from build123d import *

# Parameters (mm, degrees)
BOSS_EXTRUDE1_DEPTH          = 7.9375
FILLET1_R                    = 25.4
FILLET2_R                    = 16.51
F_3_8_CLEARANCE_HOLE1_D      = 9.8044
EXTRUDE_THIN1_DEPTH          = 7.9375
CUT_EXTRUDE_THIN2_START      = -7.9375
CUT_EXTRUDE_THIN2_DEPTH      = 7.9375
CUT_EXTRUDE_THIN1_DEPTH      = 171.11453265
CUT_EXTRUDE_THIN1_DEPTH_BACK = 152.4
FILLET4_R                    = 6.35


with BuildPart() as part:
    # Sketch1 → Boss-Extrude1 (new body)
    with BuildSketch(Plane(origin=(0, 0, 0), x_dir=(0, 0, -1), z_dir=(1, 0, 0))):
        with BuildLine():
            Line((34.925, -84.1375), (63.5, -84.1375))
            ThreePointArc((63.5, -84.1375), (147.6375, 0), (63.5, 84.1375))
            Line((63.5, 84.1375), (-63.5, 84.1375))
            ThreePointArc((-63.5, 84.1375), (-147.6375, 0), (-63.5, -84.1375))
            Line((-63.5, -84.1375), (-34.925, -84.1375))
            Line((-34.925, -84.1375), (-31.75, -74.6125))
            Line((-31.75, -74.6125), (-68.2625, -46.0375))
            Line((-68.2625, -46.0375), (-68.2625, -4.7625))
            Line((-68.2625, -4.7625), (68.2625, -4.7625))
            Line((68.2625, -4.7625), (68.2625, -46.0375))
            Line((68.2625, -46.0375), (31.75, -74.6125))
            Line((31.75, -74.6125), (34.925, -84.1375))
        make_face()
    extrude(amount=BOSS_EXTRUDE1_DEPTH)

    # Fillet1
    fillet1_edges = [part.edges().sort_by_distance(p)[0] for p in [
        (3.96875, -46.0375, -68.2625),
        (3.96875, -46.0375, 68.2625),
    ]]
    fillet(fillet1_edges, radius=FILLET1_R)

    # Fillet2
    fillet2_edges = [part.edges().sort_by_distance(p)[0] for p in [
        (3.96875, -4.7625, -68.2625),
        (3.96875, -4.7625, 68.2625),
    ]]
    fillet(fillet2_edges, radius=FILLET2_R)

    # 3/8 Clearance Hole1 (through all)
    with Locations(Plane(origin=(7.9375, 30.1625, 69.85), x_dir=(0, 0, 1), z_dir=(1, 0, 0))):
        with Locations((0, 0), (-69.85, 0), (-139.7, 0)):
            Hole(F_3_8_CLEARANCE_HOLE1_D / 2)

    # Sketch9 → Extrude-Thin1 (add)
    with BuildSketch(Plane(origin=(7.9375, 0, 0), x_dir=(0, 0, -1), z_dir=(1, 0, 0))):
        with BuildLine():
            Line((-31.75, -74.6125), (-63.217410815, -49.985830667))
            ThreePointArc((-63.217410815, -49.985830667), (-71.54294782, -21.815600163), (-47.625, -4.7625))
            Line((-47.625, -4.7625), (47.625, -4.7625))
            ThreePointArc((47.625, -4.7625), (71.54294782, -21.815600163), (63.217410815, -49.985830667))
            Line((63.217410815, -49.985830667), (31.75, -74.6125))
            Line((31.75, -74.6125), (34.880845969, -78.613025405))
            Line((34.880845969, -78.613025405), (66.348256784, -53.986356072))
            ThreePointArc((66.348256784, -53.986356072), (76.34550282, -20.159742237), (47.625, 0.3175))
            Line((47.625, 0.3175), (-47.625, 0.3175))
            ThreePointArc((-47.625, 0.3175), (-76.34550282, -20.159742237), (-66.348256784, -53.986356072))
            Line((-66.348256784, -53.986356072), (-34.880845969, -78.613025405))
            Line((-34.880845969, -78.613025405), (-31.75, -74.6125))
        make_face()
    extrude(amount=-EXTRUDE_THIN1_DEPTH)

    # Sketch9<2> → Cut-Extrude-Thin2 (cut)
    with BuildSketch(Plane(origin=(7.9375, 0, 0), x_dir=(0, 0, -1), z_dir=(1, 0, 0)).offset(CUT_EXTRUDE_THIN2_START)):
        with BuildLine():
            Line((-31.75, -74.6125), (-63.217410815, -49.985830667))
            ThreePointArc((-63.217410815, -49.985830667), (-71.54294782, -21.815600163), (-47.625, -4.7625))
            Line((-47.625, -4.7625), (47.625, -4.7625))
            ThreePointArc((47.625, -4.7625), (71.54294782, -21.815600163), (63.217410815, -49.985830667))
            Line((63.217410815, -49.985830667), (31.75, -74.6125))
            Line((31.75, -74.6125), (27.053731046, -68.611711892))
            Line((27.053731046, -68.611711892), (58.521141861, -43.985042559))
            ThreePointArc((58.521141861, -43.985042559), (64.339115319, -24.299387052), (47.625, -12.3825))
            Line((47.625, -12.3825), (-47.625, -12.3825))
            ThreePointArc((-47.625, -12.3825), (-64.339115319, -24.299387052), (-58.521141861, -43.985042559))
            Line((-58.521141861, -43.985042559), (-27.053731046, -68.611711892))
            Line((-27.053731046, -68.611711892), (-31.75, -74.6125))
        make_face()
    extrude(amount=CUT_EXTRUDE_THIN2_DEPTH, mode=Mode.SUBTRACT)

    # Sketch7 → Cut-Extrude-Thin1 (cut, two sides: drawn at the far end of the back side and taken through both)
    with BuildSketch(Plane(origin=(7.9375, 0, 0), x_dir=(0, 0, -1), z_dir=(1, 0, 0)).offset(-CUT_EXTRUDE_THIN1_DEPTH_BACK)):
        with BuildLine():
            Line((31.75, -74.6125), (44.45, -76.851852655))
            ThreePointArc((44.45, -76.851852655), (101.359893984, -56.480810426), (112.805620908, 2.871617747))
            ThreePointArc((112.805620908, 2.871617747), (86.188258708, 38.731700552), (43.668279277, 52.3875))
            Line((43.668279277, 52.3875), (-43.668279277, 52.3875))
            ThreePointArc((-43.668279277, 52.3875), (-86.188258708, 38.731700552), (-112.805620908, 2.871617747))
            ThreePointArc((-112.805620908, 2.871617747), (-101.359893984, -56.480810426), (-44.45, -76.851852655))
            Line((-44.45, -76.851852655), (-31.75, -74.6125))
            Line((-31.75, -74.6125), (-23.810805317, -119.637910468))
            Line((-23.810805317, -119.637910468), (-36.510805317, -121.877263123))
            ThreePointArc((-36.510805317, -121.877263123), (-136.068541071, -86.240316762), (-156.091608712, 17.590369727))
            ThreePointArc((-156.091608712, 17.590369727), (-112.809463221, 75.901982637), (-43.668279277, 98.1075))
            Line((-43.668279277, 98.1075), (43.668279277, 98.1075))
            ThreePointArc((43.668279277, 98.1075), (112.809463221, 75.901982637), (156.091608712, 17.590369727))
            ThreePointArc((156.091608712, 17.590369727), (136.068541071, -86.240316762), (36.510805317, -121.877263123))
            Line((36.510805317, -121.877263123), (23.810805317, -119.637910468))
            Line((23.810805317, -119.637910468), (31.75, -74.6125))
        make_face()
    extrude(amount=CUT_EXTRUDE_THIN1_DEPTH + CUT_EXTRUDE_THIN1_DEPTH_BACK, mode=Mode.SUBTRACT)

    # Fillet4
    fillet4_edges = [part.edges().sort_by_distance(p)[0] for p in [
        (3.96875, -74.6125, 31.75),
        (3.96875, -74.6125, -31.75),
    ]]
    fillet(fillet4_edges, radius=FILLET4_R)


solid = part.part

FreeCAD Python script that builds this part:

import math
import FreeCAD as App
import Part
import Sketcher

V = App.Vector
Q = App.Units.Quantity


def edges_at(feature, points):
    """Names of the edges that pass closest to the given points."""
    edges = feature.Shape.Edges
    near = lambda p: min(range(len(edges)), key=lambda i: edges[i].distToShape(Part.Vertex(*p))[0])
    return sorted({f"Edge{near(p) + 1}" for p in points})

doc = App.newDocument("Part")
body = doc.addObject("PartDesign::Body", "Body")

# Sketch on YZ plane
sketch1 = body.newObject("Sketcher::SketchObject", "Sketch")
sketch1.AttachmentSupport = (doc.getObject("YZ_Plane"), [""])
sketch1.MapMode = "FlatFace"
sketch1.addGeometry([
    Part.LineSegment(V(-84, -35, 0), V(-84, -64, 0)),  # 0
    Part.ArcOfCircle(Part.Circle(V(0, -64, 0), V(0, 0, 1), 84), math.radians(180), math.radians(360)),  # 1
    Part.LineSegment(V(84, -64, 0), V(84, 64, 0)),  # 2
    Part.ArcOfCircle(Part.Circle(V(0, 64, 0), V(0, 0, 1), 84), math.radians(0), math.radians(180)),  # 3
    Part.LineSegment(V(-84, 64, 0), V(-84, 35, 0)),  # 4
    Part.LineSegment(V(-84, 35, 0), V(-75, 32, 0)),  # 5
    Part.LineSegment(V(-75, 32, 0), V(-46, 68, 0)),  # 6
    Part.LineSegment(V(-46, 68, 0), V(-5, 68, 0)),  # 7
    Part.LineSegment(V(-5, 68, 0), V(-5, -68, 0)),  # 8
    Part.LineSegment(V(-5, -68, 0), V(-46, -68, 0)),  # 9
    Part.LineSegment(V(-46, -68, 0), V(-75, -32, 0)),  # 10
    Part.LineSegment(V(-75, -32, 0), V(-84, -35, 0)),  # 11
], False)
sketch1.addConstraint([
    Sketcher.Constraint("Tangent", 0, 2, 1, 1),
    Sketcher.Constraint("Tangent", 1, 2, 2, 1),
    Sketcher.Constraint("Tangent", 2, 2, 3, 1),
    Sketcher.Constraint("Tangent", 3, 2, 4, 1),
    Sketcher.Constraint("Coincident", 4, 2, 5, 1),
    Sketcher.Constraint("Coincident", 5, 2, 6, 1),
    Sketcher.Constraint("Coincident", 6, 2, 7, 1),
    Sketcher.Constraint("Coincident", 7, 2, 8, 1),
    Sketcher.Constraint("Coincident", 8, 2, 9, 1),
    Sketcher.Constraint("Coincident", 9, 2, 10, 1),
    Sketcher.Constraint("Coincident", 10, 2, 11, 1),
    Sketcher.Constraint("Coincident", 11, 2, 0, 1),
    Sketcher.Constraint("Vertical", 0),
    Sketcher.Constraint("Vertical", 2),
    Sketcher.Constraint("Vertical", 4),
    Sketcher.Constraint("Horizontal", 7),
    Sketcher.Constraint("Vertical", 8),
    Sketcher.Constraint("Horizontal", 9),
    Sketcher.Constraint("Equal", 1, 3),
    Sketcher.Constraint("Symmetric", 1, 3, 3, 3, -1, 1),
    Sketcher.Constraint("Symmetric", 6, 2, 9, 2, -1),
    Sketcher.Constraint("Symmetric", 5, 2, 10, 2, -1),
    Sketcher.Constraint("Equal", 0, 4),
    Sketcher.Constraint("DistanceY", 2, 1, 2, 2, Q("5 in")),
    Sketcher.Constraint("Radius", 1, Q("3.3125 in")),
    Sketcher.Constraint("DistanceX", 3, 2, 6, 2, Q("1.5 in")),
    Sketcher.Constraint("DistanceX", 8, 2, 1, 2, Q("3.5 in")),
    Sketcher.Constraint("DistanceY", 10, 2, 5, 2, Q("2.5 in")),
    Sketcher.Constraint("DistanceY", 0, 2, 0, 1, Q("1.125 in")),
    Sketcher.Constraint("DistanceY", 8, 2, 8, 1, Q("5.375 in")),
    Sketcher.Constraint("DistanceX", 5, 2, 7, 2, Q("2.75 in")),
])
pad1 = body.newObject("PartDesign::Pad", "Pad")
pad1.Profile = sketch1
pad1.Length = Q("0.3125 in")
doc.recompute()

fillet = body.newObject("PartDesign::Fillet", "Fillet")
fillet.Base = (pad1, edges_at(pad1, [(3.969, -46.038, -68.263), (3.969, -46.038, 68.263)]))
fillet.Radius = Q("1 in")
doc.recompute()

fillet2 = body.newObject("PartDesign::Fillet", "Fillet001")
fillet2.Base = (fillet, edges_at(fillet, [(3.969, -4.763, -68.263), (3.969, -4.763, 68.263)]))
fillet2.Radius = Q("0.65 in")

# Sketch on YZ plane
sketch2 = body.newObject("Sketcher::SketchObject", "Sketch001")
sketch2.AttachmentSupport = (doc.getObject("YZ_Plane"), [""])
sketch2.MapMode = "FlatFace"
sketch2.AttachmentOffset = App.Placement(V(0, 0, 0.3125 * 25.4), App.Rotation())
sketch2.addGeometry([
    Part.Circle(V(30.2, 69.8, 0), V(0, 0, 1), 4.9),
    Part.Circle(V(30.2, 0, 0), V(0, 0, 1), 4.9),
    Part.Circle(V(30.2, -69.8, 0), V(0, 0, 1), 4.9),
], False)
sketch2.addConstraint([
    Sketcher.Constraint("Equal", 0, 1),
    Sketcher.Constraint("Equal", 1, 2),
    Sketcher.Constraint("Symmetric", 0, 3, 2, 3, -1),
    Sketcher.Constraint("PointOnObject", 1, 3, -1),
    Sketcher.Constraint("Vertical", 0, 3, 1, 3),
    Sketcher.Constraint("Diameter", 0, Q("0.386 in")),
    Sketcher.Constraint("DistanceY", 2, 3, 0, 3, Q("5.5 in")),
    Sketcher.Constraint("DistanceX", -1, 1, 0, 3, Q("1.1875 in")),
])
doc.recompute()
hole = body.newObject("PartDesign::Hole", "Hole")
hole.Profile = sketch2
hole.ThreadType = "None"
hole.Diameter = Q("0.386 in")
hole.DepthType = "ThroughAll"

# Sketch on YZ plane
sketch3 = body.newObject("Sketcher::SketchObject", "Sketch002")
sketch3.AttachmentSupport = (doc.getObject("YZ_Plane"), [""])
sketch3.MapMode = "FlatFace"
sketch3.AttachmentOffset = App.Placement(V(0, 0, 0.3125 * 25.4), App.Rotation())
sketch3.addGeometry([
    Part.LineSegment(V(-75, 32, 0), V(-50, 63, 0)),  # 0
    Part.ArcOfCircle(Part.Circle(V(-30, 48, 0), V(0, 0, 1), 25), math.radians(0), math.radians(142)),  # 1
    Part.LineSegment(V(-5, 48, 0), V(-5, -48, 0)),  # 2
    Part.ArcOfCircle(Part.Circle(V(-30, -48, 0), V(0, 0, 1), 25), math.radians(-142), math.radians(0)),  # 3
    Part.LineSegment(V(-50, -63, 0), V(-75, -32, 0)),  # 4
    Part.LineSegment(V(-75, -32, 0), V(-79, -35, 0)),  # 5
    Part.LineSegment(V(-79, -35, 0), V(-54, -66, 0)),  # 6
    Part.ArcOfCircle(Part.Circle(V(-30, -48, 0), V(0, 0, 1), 30), math.radians(-142), math.radians(0)),  # 7
    Part.LineSegment(V(0, -48, 0), V(0, 48, 0)),  # 8
    Part.ArcOfCircle(Part.Circle(V(-30, 48, 0), V(0, 0, 1), 30), math.radians(0), math.radians(142)),  # 9
    Part.LineSegment(V(-54, 66, 0), V(-79, 35, 0)),  # 10
    Part.LineSegment(V(-79, 35, 0), V(-75, 32, 0)),  # 11
], False)
sketch3.addConstraint([
    Sketcher.Constraint("Tangent", 0, 2, 1, 2),
    Sketcher.Constraint("Tangent", 1, 1, 2, 1),
    Sketcher.Constraint("Tangent", 2, 2, 3, 2),
    Sketcher.Constraint("Tangent", 3, 1, 4, 1),
    Sketcher.Constraint("Coincident", 4, 2, 5, 1),
    Sketcher.Constraint("Coincident", 5, 2, 6, 1),
    Sketcher.Constraint("Tangent", 6, 2, 7, 1),
    Sketcher.Constraint("Tangent", 7, 2, 8, 1),
    Sketcher.Constraint("Tangent", 8, 2, 9, 1),
    Sketcher.Constraint("Tangent", 9, 2, 10, 1),
    Sketcher.Constraint("Coincident", 10, 2, 11, 1),
    Sketcher.Constraint("Coincident", 11, 2, 0, 1),
    Sketcher.Constraint("Vertical", 2),
    Sketcher.Constraint("Vertical", 8),
    Sketcher.Constraint("Coincident", 7, 3, 3, 3),
    Sketcher.Constraint("Coincident", 9, 3, 1, 3),
    Sketcher.Constraint("Equal", 1, 3),
    Sketcher.Constraint("Symmetric", 0, 2, 3, 1, -1),
    Sketcher.Constraint("Symmetric", 5, 2, 10, 2, -1),
    Sketcher.Constraint("Perpendicular", 4, 5),
    Sketcher.Constraint("Perpendicular", 5, 6),
    Sketcher.Constraint("Perpendicular", 10, 11),
    Sketcher.Constraint("Distance", 5, Q("0.2 in")),
    Sketcher.Constraint("DistanceY", 2, 2, 2, 1, Q("3.75 in")),
    Sketcher.Constraint("DistanceY", 4, 2, -1, 1, Q("1.25 in")),
    Sketcher.Constraint("DistanceX", 4, 2, 2, 2, Q("2.75 in")),
    Sketcher.Constraint("DistanceX", 1, 1, -1, 1, Q("0.1875 in")),
    Sketcher.Constraint("Radius", 1, Q("25.299695 mm")),
])
pad2 = body.newObject("PartDesign::Pad", "Pad001")
pad2.Profile = sketch3
pad2.Length = Q("0.3125 in")
pad2.Reversed = True

# Sketch on YZ plane
sketch4 = body.newObject("Sketcher::SketchObject", "Sketch003")
sketch4.AttachmentSupport = (doc.getObject("YZ_Plane"), [""])
sketch4.MapMode = "FlatFace"
sketch4.addGeometry([
    Part.LineSegment(V(-50, 63, 0), V(-75, 32, 0)),  # 0
    Part.LineSegment(V(-75, 32, 0), V(-69, 27, 0)),  # 1
    Part.LineSegment(V(-69, 27, 0), V(-44, 59, 0)),  # 2
    Part.ArcOfCircle(Part.Circle(V(-30, 48, 0), V(0, 0, 1), 18), math.radians(0), math.radians(142)),  # 3
    Part.LineSegment(V(-12, 48, 0), V(-12, -48, 0)),  # 4
    Part.ArcOfCircle(Part.Circle(V(-30, -48, 0), V(0, 0, 1), 18), math.radians(-142), math.radians(0)),  # 5
    Part.LineSegment(V(-44, -59, 0), V(-69, -27, 0)),  # 6
    Part.LineSegment(V(-69, -27, 0), V(-75, -32, 0)),  # 7
    Part.LineSegment(V(-75, -32, 0), V(-50, -63, 0)),  # 8
    Part.ArcOfCircle(Part.Circle(V(-30, -48, 0), V(0, 0, 1), 25), math.radians(-142), math.radians(0)),  # 9
    Part.LineSegment(V(-5, -48, 0), V(-5, 48, 0)),  # 10
    Part.ArcOfCircle(Part.Circle(V(-30, 48, 0), V(0, 0, 1), 25), math.radians(0), math.radians(142)),  # 11
], False)
sketch4.addConstraint([
    Sketcher.Constraint("Coincident", 0, 2, 1, 1),
    Sketcher.Constraint("Coincident", 1, 2, 2, 1),
    Sketcher.Constraint("Tangent", 2, 2, 3, 2),
    Sketcher.Constraint("Tangent", 3, 1, 4, 1),
    Sketcher.Constraint("Tangent", 4, 2, 5, 2),
    Sketcher.Constraint("Tangent", 5, 1, 6, 1),
    Sketcher.Constraint("Coincident", 6, 2, 7, 1),
    Sketcher.Constraint("Coincident", 7, 2, 8, 1),
    Sketcher.Constraint("Tangent", 8, 2, 9, 1),
    Sketcher.Constraint("Tangent", 9, 2, 10, 1),
    Sketcher.Constraint("Tangent", 10, 2, 11, 1),
    Sketcher.Constraint("Tangent", 11, 2, 0, 1),
    Sketcher.Constraint("Vertical", 4),
    Sketcher.Constraint("Vertical", 10),
    Sketcher.Constraint("Coincident", 9, 3, 5, 3),
    Sketcher.Constraint("Coincident", 11, 3, 3, 3),
    Sketcher.Constraint("Equal", 3, 5),
    Sketcher.Constraint("Symmetric", 2, 2, 5, 1, -1),
    Sketcher.Constraint("Symmetric", 0, 2, 7, 2, -1),
    Sketcher.Constraint("Perpendicular", 0, 1),
    Sketcher.Constraint("Perpendicular", 1, 2),
    Sketcher.Constraint("Perpendicular", 6, 7),
    Sketcher.Constraint("Distance", 1, Q("0.3 in")),
    Sketcher.Constraint("DistanceY", 4, 2, 4, 1, Q("3.75 in")),
    Sketcher.Constraint("DistanceY", -1, 1, 0, 2, Q("1.25 in")),
    Sketcher.Constraint("DistanceX", 0, 2, 3, 1, Q("2.45 in")),
    Sketcher.Constraint("DistanceX", 0, 2, -1, 1, Q("2.9375 in")),
    Sketcher.Constraint("Radius", 3, Q("17.679695 mm")),
])
pocket1 = body.newObject("PartDesign::Pocket", "Pocket")
pocket1.Profile = sketch4
pocket1.Length = Q("0.3125 in")
pocket1.Reversed = True

# Sketch on YZ plane
sketch5 = body.newObject("Sketcher::SketchObject", "Sketch004")
sketch5.AttachmentSupport = (doc.getObject("YZ_Plane"), [""])
sketch5.MapMode = "FlatFace"
sketch5.AttachmentOffset = App.Placement(V(0, 0, 0.3125 * 25.4), App.Rotation())
sketch5.addGeometry([
    Part.LineSegment(V(-77, -44, 0), V(-75, -32, 0)),  # 0
    Part.LineSegment(V(-75, -32, 0), V(-120, -24, 0)),  # 1
    Part.LineSegment(V(-120, -24, 0), V(-122, -37, 0)),  # 2
    Part.ArcOfCircle(Part.Circle(V(-17, -55, 0), V(0, 0, 1), 107), math.radians(170), math.radians(289)),  # 3
    Part.ArcOfCircle(Part.Circle(V(-21, -44, 0), V(0, 0, 1), 119), math.radians(-71), math.radians(0)),  # 4
    Part.LineSegment(V(98, -44, 0), V(98, 44, 0)),  # 5
    Part.ArcOfCircle(Part.Circle(V(-21, 44, 0), V(0, 0, 1), 119), math.radians(0), math.radians(71)),  # 6
    Part.ArcOfCircle(Part.Circle(V(-17, 55, 0), V(0, 0, 1), 107), math.radians(71), math.radians(190)),  # 7
    Part.LineSegment(V(-122, 37, 0), V(-120, 24, 0)),  # 8
    Part.LineSegment(V(-120, 24, 0), V(-75, 32, 0)),  # 9
    Part.LineSegment(V(-75, 32, 0), V(-77, 44, 0)),  # 10
    Part.ArcOfCircle(Part.Circle(V(-17, 55, 0), V(0, 0, 1), 61), math.radians(71), math.radians(190)),  # 11
    Part.ArcOfCircle(Part.Circle(V(-21, 44, 0), V(0, 0, 1), 73), math.radians(0), math.radians(71)),  # 12
    Part.LineSegment(V(52, 44, 0), V(52, -44, 0)),  # 13
    Part.ArcOfCircle(Part.Circle(V(-21, -44, 0), V(0, 0, 1), 73), math.radians(-71), math.radians(0)),  # 14
    Part.ArcOfCircle(Part.Circle(V(-17, -55, 0), V(0, 0, 1), 61), math.radians(170), math.radians(289)),  # 15
], False)
sketch5.addConstraint([
    Sketcher.Constraint("Coincident", 0, 2, 1, 1),
    Sketcher.Constraint("Coincident", 1, 2, 2, 1),
    Sketcher.Constraint("Tangent", 2, 2, 3, 1),
    Sketcher.Constraint("Tangent", 3, 2, 4, 1),
    Sketcher.Constraint("Tangent", 4, 2, 5, 1),
    Sketcher.Constraint("Tangent", 5, 2, 6, 1),
    Sketcher.Constraint("Tangent", 6, 2, 7, 1),
    Sketcher.Constraint("Tangent", 7, 2, 8, 1),
    Sketcher.Constraint("Coincident", 8, 2, 9, 1),
    Sketcher.Constraint("Coincident", 9, 2, 10, 1),
    Sketcher.Constraint("Tangent", 10, 2, 11, 2),
    Sketcher.Constraint("Tangent", 11, 1, 12, 2),
    Sketcher.Constraint("Tangent", 12, 1, 13, 1),
    Sketcher.Constraint("Tangent", 13, 2, 14, 2),
    Sketcher.Constraint("Tangent", 14, 1, 15, 2),
    Sketcher.Constraint("Tangent", 15, 1, 0, 1),
    Sketcher.Constraint("Vertical", 5),
    Sketcher.Constraint("Vertical", 13),
    Sketcher.Constraint("Coincident", 11, 3, 7, 3),
    Sketcher.Constraint("Coincident", 12, 3, 6, 3),
    Sketcher.Constraint("Coincident", 14, 3, 4, 3),
    Sketcher.Constraint("Coincident", 15, 3, 3, 3),
    Sketcher.Constraint("Equal", 4, 6),
    Sketcher.Constraint("Equal", 3, 7),
    Sketcher.Constraint("Symmetric", 3, 3, 7, 3, -1),
    Sketcher.Constraint("Symmetric", 1, 2, 8, 2, -1),
    Sketcher.Constraint("Symmetric", 0, 2, 9, 2, -1),
    Sketcher.Constraint("Perpendicular", 0, 1),
    Sketcher.Constraint("Perpendicular", 1, 2),
    Sketcher.Constraint("Angle", 0, Q("80 deg")),
    Sketcher.Constraint("Radius", 4, Q("4.675 in")),
    Sketcher.Constraint("Radius", 12, Q("2.875 in")),
    Sketcher.Constraint("DistanceY", 2, 2, 1, 2, Q("0.5 in")),
    Sketcher.Constraint("DistanceY", 0, 2, -1, 1, Q("1.25 in")),
    Sketcher.Constraint("DistanceX", 4, 3, -1, 1, Q("0.8125 in")),
    Sketcher.Constraint("DistanceX", 0, 2, -1, 1, Q("2.9375 in")),
    Sketcher.Constraint("Radius", 3, Q("106.729426 mm")),
])
pocket2 = body.newObject("PartDesign::Pocket", "Pocket001")
pocket2.Profile = sketch5
pocket2.Type = "ThroughAll"
pocket2.Midplane = True
doc.recompute()

fillet3 = body.newObject("PartDesign::Fillet", "Fillet002")
fillet3.Base = (pocket2, edges_at(pocket2, [(3.969, -74.612, 31.75), (3.969, -74.612, -31.75)]))
fillet3.Radius = Q("0.25 in")

doc.recompute()
